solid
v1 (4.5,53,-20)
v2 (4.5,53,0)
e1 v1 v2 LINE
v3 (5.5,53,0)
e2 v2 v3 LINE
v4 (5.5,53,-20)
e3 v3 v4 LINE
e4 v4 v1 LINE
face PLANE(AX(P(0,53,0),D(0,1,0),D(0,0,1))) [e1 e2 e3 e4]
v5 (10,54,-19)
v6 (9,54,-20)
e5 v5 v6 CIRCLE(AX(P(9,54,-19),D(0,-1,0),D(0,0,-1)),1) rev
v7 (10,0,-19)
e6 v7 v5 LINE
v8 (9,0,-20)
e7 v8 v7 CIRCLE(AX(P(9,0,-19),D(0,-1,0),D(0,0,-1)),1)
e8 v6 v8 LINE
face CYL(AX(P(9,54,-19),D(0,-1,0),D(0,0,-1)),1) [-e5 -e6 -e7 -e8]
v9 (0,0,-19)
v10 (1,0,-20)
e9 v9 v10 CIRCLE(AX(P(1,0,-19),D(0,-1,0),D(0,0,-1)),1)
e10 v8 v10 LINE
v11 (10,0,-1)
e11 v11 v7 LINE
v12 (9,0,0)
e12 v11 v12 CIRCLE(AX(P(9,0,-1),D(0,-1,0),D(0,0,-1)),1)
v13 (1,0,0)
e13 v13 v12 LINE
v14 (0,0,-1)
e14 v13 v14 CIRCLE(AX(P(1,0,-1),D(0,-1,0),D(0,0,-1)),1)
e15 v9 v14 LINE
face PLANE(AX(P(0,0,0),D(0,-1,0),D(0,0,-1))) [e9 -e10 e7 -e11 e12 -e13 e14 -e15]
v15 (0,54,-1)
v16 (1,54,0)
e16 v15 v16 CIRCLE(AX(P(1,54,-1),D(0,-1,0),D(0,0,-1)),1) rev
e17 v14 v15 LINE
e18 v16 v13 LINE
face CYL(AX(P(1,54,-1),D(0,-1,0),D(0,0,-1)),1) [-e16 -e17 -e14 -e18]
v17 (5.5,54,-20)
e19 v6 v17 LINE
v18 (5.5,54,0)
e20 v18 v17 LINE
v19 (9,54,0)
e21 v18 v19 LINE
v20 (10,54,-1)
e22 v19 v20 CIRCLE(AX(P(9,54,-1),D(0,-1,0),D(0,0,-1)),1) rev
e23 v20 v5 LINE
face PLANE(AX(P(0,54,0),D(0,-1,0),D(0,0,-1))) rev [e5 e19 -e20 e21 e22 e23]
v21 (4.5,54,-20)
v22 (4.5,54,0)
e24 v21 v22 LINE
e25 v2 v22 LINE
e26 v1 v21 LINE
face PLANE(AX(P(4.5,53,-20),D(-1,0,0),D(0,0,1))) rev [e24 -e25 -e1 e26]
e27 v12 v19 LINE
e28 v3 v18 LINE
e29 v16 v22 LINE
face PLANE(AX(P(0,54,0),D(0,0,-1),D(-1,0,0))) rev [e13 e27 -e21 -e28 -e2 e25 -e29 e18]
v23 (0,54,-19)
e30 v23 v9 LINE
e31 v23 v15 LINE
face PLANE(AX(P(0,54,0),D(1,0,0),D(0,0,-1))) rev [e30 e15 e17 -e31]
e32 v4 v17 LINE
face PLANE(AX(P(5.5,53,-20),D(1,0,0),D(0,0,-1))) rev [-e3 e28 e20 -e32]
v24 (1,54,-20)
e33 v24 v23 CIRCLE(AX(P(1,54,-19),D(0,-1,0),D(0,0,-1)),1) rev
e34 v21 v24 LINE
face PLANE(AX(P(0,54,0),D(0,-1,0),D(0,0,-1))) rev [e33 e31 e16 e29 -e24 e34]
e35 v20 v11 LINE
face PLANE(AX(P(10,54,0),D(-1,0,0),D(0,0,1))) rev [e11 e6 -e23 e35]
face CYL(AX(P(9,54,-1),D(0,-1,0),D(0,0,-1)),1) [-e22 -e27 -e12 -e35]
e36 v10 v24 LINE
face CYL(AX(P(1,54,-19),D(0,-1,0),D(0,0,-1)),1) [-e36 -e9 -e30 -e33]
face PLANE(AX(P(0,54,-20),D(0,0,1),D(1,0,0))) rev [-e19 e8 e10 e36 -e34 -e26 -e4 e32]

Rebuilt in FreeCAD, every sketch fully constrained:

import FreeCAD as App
import Part
import Sketcher

V = App.Vector
Q = App.Units.Quantity


def edges_at(feature, points):
    """Names of the edges that pass closest to the given points."""
    edges = feature.Shape.Edges
    near = lambda p: min(range(len(edges)), key=lambda i: edges[i].distToShape(Part.Vertex(*p))[0])
    return sorted({f"Edge{near(p) + 1}" for p in points})


def add_polygon(sketch, points):
    """Adds a closed chain of lines whose ends are joined by coincident constraints."""
    first, n = sketch.GeometryCount, len(points)
    for a, b in zip(points, points[1:] + points[:1]):
        sketch.addGeometry(Part.LineSegment(App.Vector(*a, 0), App.Vector(*b, 0)), False)
    for i in range(n):
        sketch.addConstraint(Sketcher.Constraint("Coincident", first + i, 2, first + (i + 1) % n, 1))

doc = App.newDocument("Part")
body = doc.addObject("PartDesign::Body", "Body")

# Sketch on XZ plane
sketch1 = doc.addObject("Sketcher::SketchObject", "Sketch")
body.addObject(sketch1)
sketch1.AttachmentSupport = (doc.XZ_Plane, [""])
sketch1.MapMode = "FlatFace"
add_polygon(sketch1, [(0, -20), (0, 0), (10, 0), (10, -20)])  # lines 0-3
sketch1.addConstraint(Sketcher.Constraint("Vertical", 0))
sketch1.addConstraint(Sketcher.Constraint("Horizontal", 1))
sketch1.addConstraint(Sketcher.Constraint("Vertical", 2))
sketch1.addConstraint(Sketcher.Constraint("Horizontal", 3))
sketch1.addConstraint(Sketcher.Constraint("Coincident", 0, 2, -1, 1))
sketch1.addConstraint(Sketcher.Constraint("DistanceX", 1, 1, 1, 2, Q("10 mm")))
sketch1.addConstraint(Sketcher.Constraint("DistanceY", 0, 1, 0, 2, Q("20 mm")))
pad1 = doc.addObject("PartDesign::Pad", "Pad")
body.addObject(pad1)
pad1.Profile = sketch1
pad1.Length = 54
pad1.Reversed = True
doc.recompute()

fillet = doc.addObject("PartDesign::Fillet", "Fillet")
body.addObject(fillet)
fillet.Base = (pad1, edges_at(pad1, [
    (0, 27, -20),
    (10, 27, -20),
    (10, 27, 0),
    (0, 27, 0),
]))
fillet.Radius = 1

# Sketch on XZ plane
sketch2 = doc.addObject("Sketcher::SketchObject", "Sketch001")
body.addObject(sketch2)
sketch2.AttachmentSupport = (doc.XZ_Plane, [""])
sketch2.MapMode = "FlatFace"
sketch2.AttachmentOffset = App.Placement(V(0, 0, -54), App.Rotation())
add_polygon(sketch2, [(4.5, -20), (4.5, 0), (5.5, 0), (5.5, -20)])  # lines 0-3
sketch2.addConstraint(Sketcher.Constraint("Vertical", 0))
sketch2.addConstraint(Sketcher.Constraint("Horizontal", 1))
sketch2.addConstraint(Sketcher.Constraint("Vertical", 2))
sketch2.addConstraint(Sketcher.Constraint("Horizontal", 3))
sketch2.addConstraint(Sketcher.Constraint("PointOnObject", 0, 2, -1))
sketch2.addConstraint(Sketcher.Constraint("DistanceX", 1, 1, 1, 2, Q("1 mm")))
sketch2.addConstraint(Sketcher.Constraint("DistanceY", 0, 1, 0, 2, Q("20 mm")))
sketch2.addConstraint(Sketcher.Constraint("DistanceX", -1, 1, 0, 2, Q("4.5 mm")))
pocket1 = doc.addObject("PartDesign::Pocket", "Pocket")
body.addObject(pocket1)
pocket1.Profile = sketch2
pocket1.Length = 1
pocket1.Reversed = True

doc.recompute()
